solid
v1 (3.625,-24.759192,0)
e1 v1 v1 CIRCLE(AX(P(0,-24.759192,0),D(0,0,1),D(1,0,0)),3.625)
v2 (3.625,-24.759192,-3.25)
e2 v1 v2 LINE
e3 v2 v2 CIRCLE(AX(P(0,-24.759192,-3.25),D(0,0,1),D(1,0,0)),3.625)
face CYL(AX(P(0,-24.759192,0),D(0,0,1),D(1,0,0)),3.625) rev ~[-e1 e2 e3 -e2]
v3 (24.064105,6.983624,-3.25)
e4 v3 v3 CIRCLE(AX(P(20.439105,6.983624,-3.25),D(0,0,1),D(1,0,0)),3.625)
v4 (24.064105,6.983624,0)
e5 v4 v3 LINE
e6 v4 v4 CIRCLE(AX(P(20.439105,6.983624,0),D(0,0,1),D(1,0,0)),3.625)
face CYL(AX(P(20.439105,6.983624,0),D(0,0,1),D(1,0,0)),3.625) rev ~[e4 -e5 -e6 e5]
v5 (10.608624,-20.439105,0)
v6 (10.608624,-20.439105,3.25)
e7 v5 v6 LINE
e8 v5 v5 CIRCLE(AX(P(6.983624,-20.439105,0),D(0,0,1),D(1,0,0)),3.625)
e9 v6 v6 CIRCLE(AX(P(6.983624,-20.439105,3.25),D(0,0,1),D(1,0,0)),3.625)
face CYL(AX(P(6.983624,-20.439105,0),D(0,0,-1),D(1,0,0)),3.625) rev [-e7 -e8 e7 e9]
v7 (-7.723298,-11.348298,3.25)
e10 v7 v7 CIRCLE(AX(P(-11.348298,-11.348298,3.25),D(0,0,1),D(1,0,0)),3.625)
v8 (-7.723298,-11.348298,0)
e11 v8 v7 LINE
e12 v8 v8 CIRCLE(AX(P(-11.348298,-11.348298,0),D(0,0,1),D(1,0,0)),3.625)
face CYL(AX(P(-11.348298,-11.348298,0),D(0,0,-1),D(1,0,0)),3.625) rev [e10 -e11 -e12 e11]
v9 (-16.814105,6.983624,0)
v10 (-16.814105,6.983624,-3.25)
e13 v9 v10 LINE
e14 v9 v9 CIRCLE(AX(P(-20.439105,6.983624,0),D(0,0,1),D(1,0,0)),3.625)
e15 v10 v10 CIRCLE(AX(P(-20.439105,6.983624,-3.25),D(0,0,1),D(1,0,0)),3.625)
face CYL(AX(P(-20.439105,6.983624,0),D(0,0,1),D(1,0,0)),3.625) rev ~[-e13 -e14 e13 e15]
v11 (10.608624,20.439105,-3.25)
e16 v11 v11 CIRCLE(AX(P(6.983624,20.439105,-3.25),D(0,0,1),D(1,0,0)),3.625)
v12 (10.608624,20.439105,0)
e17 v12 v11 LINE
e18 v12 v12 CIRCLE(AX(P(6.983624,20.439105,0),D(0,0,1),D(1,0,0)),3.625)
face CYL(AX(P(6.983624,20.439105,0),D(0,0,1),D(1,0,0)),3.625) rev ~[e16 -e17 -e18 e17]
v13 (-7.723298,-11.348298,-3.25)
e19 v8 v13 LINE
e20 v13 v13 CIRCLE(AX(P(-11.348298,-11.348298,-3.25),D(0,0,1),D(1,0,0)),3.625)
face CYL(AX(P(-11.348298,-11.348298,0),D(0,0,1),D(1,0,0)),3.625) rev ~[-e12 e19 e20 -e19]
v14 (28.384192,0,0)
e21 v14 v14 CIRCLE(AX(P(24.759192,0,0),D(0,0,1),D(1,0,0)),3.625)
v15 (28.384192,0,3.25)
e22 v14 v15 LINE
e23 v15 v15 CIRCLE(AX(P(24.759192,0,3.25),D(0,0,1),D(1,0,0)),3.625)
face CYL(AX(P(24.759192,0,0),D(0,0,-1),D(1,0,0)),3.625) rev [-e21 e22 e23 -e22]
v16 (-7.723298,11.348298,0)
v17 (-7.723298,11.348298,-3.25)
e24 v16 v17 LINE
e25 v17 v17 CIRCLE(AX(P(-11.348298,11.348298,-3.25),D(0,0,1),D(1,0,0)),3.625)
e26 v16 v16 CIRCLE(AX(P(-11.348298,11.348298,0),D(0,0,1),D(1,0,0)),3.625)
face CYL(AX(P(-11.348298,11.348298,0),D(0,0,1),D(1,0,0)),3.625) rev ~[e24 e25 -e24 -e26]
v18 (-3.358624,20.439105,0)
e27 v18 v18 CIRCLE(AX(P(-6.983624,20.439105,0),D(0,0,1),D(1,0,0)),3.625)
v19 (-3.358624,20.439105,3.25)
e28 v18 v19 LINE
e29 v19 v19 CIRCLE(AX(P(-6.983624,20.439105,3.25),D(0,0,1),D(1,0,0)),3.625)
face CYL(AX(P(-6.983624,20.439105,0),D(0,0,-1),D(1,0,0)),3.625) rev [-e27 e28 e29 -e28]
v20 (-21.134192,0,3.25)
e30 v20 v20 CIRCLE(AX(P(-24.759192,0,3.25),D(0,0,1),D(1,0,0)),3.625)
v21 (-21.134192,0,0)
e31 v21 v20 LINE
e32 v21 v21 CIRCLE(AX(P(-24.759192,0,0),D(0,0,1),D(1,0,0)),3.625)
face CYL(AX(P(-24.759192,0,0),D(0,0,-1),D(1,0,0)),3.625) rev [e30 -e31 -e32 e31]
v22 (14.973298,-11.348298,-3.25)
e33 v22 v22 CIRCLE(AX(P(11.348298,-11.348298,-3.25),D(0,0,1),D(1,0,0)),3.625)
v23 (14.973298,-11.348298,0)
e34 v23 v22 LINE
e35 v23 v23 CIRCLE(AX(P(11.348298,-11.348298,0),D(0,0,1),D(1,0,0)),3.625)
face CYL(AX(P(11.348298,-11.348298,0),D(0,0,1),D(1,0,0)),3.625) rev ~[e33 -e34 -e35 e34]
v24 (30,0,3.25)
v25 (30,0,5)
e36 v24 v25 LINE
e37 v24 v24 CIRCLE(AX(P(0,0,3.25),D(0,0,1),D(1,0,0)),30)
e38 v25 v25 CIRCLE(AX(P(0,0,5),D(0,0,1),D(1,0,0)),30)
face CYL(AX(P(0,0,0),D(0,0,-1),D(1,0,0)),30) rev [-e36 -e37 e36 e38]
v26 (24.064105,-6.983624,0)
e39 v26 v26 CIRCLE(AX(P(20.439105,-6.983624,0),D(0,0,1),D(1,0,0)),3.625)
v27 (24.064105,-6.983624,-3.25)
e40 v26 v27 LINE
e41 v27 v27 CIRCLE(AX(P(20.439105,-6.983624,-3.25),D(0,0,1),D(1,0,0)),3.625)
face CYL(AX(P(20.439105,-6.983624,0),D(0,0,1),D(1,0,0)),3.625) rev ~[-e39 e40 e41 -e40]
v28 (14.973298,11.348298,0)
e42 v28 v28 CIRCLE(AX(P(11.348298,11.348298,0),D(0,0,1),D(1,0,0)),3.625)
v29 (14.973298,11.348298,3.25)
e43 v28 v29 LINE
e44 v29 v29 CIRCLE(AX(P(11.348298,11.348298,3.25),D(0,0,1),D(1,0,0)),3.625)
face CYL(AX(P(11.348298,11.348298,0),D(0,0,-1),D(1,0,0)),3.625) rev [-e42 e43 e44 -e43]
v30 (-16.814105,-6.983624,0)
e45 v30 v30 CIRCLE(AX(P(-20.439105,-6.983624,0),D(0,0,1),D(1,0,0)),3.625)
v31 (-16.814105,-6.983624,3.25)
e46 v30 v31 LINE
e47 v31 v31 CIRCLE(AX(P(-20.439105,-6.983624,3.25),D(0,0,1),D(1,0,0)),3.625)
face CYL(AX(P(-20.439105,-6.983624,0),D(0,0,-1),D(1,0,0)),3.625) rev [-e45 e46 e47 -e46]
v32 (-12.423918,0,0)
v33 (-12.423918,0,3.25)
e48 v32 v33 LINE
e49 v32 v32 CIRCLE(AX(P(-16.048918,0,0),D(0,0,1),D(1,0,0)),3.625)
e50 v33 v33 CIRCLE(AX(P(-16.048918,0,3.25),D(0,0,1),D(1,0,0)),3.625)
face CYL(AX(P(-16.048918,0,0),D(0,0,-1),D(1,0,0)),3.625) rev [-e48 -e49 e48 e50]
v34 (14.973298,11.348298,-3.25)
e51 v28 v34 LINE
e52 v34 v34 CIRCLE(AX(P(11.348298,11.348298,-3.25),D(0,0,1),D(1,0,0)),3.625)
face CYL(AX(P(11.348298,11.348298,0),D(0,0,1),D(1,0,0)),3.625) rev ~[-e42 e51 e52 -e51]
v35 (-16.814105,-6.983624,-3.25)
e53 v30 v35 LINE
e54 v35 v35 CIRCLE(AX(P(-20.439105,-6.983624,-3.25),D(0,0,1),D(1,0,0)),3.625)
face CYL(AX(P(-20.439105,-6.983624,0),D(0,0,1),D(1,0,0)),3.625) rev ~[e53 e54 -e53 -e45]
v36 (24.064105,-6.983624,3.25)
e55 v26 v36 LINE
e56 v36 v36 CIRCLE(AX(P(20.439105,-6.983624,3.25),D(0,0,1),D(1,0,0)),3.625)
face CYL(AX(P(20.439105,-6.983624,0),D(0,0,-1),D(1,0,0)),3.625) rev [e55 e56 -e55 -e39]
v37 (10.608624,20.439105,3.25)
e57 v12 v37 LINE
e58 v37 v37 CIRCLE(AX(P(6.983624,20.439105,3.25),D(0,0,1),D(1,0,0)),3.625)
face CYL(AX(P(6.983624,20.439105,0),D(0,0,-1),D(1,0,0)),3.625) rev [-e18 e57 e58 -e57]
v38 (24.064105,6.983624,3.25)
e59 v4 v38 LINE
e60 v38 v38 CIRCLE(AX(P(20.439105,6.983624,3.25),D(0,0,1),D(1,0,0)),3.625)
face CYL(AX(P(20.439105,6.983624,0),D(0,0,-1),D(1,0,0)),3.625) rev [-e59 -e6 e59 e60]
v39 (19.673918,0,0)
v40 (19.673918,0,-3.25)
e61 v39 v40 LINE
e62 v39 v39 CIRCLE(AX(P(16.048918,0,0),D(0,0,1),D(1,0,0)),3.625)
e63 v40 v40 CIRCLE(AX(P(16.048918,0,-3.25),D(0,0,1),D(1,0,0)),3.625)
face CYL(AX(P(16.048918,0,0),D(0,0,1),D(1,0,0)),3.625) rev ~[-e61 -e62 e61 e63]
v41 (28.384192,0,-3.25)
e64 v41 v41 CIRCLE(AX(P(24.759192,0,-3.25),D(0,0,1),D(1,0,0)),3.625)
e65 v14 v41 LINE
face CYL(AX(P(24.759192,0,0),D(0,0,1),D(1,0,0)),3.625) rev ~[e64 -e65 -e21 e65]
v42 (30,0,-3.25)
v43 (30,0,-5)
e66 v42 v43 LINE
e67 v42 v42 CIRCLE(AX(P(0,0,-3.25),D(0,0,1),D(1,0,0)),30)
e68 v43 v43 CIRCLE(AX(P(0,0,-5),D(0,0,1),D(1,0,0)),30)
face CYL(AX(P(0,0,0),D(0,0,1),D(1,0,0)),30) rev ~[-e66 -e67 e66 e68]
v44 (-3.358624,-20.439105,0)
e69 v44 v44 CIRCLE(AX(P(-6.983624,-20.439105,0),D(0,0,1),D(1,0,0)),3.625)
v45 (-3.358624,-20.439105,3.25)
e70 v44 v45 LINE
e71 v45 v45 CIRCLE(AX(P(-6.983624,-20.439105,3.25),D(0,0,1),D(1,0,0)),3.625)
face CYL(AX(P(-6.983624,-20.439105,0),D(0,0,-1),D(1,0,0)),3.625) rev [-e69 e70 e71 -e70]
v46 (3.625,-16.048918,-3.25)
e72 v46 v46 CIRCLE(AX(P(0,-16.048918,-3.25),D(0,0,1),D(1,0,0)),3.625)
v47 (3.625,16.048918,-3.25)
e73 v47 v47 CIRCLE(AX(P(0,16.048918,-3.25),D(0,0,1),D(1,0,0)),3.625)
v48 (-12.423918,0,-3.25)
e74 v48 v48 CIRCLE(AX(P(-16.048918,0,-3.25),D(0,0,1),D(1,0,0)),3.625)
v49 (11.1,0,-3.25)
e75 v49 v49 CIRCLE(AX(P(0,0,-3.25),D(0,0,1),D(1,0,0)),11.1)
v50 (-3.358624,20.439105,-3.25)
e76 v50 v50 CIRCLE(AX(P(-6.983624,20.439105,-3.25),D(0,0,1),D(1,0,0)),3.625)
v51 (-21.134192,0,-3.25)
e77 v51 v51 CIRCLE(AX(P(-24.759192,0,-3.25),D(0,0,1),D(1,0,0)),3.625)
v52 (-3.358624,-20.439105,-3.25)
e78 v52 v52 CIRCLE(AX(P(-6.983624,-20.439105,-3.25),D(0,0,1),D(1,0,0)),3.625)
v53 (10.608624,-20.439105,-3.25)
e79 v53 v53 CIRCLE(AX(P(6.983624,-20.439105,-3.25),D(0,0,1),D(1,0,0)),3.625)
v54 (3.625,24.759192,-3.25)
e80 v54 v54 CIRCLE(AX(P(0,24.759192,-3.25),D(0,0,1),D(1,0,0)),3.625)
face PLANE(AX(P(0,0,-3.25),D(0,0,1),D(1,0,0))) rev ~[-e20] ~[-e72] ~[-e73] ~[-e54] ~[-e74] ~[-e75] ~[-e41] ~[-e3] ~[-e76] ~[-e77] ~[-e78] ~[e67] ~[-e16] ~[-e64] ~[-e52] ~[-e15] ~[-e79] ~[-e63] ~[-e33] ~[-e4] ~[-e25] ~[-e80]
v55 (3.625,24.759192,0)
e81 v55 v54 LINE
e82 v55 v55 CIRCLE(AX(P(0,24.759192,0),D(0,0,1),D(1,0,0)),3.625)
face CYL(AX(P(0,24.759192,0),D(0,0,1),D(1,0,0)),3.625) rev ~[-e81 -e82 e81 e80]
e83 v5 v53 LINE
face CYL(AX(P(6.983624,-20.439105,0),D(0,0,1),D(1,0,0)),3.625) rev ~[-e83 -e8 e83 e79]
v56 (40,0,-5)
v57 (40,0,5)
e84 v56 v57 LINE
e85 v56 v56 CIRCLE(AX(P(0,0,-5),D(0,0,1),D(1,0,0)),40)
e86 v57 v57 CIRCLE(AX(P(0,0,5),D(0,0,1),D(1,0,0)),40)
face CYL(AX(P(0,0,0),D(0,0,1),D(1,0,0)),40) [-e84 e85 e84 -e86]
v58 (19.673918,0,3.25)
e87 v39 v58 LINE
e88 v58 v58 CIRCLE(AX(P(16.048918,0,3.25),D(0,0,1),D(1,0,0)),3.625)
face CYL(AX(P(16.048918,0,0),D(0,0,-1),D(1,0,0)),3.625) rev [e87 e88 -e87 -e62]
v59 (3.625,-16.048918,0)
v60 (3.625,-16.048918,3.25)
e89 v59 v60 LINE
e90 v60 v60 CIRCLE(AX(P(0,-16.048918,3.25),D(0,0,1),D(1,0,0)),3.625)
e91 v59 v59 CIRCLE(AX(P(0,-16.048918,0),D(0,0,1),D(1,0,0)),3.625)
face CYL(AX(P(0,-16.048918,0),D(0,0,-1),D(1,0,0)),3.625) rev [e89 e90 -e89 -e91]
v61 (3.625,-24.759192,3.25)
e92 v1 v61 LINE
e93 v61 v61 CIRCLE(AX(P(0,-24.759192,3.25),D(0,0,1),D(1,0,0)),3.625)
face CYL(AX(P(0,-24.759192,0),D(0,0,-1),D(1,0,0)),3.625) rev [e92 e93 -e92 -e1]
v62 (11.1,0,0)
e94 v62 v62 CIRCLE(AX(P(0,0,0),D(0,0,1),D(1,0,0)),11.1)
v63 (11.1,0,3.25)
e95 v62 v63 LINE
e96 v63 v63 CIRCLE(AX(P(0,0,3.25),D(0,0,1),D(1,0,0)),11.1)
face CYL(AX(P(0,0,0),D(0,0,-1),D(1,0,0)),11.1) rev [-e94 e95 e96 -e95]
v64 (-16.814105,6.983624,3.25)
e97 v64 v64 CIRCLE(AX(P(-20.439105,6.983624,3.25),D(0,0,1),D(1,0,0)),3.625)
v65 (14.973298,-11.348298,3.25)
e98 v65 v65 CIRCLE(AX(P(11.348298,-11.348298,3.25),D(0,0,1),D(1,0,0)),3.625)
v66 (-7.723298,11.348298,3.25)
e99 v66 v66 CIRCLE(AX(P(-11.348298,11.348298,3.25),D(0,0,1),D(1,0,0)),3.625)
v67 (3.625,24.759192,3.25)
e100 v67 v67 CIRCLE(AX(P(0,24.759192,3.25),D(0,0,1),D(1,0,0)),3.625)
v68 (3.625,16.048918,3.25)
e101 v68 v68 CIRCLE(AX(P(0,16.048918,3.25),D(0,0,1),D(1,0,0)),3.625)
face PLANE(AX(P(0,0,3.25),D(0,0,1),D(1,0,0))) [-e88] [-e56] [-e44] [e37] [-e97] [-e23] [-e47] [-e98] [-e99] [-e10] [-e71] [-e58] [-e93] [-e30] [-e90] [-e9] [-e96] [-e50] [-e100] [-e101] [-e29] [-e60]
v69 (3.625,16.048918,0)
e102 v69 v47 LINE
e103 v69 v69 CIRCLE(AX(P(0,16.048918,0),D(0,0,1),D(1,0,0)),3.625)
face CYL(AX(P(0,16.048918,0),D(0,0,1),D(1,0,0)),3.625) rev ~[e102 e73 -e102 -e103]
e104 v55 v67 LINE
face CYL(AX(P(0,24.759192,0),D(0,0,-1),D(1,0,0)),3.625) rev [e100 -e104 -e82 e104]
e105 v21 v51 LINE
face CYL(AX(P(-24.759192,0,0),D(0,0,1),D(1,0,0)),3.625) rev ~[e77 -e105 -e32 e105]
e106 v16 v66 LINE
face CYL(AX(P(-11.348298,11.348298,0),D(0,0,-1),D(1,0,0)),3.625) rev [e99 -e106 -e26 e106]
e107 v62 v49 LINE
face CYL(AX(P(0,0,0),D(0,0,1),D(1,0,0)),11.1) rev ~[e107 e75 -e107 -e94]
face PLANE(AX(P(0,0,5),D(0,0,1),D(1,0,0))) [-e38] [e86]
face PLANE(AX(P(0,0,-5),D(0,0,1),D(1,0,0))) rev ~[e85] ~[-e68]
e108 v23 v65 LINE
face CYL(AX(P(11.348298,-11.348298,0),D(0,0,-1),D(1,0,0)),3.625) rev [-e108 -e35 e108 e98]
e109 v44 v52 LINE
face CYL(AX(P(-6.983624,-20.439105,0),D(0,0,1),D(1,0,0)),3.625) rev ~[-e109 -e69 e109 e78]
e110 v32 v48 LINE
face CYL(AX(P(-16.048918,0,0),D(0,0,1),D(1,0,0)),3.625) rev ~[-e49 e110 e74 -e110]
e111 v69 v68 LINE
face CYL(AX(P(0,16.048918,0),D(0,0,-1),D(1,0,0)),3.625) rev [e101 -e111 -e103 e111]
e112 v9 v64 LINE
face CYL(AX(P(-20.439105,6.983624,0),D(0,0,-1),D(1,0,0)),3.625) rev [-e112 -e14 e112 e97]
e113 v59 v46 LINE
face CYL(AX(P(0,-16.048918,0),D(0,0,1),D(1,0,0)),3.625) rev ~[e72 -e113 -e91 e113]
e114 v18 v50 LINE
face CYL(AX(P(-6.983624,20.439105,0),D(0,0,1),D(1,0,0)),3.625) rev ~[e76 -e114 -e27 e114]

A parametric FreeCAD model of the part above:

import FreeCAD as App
import Part
import Sketcher
Q = App.Units.Quantity

doc = App.newDocument("Part")
params = doc.addObject("Spreadsheet::Sheet", "Params")
for row, (alias, value) in enumerate([
    ("sketch1_diameter", "60 mm"),
    ("sketch1_diameter2", "22.2 mm"),
    ("sketch1_diameter3", "7.25 mm"),
    ("pad1_length", "3.25 mm"),
    ("pad1_length2", "3.25 mm"),
    ("sketch2_diameter", "80 mm"),
    ("sketch2_diameter2", "60 mm"),
    ("pad2_length", "5 mm"),
    ("pad2_length2", "5 mm"),
], start=1):
    params.set(f"A{row}", alias)
    params.set(f"B{row}", "=" + value)
    params.setAlias(f"B{row}", alias)

body = doc.addObject("PartDesign::Body", "Body")

# Sketch on XY plane
sketch1 = doc.addObject("Sketcher::SketchObject", "Sketch")
body.addObject(sketch1)
sketch1.AttachmentSupport = (doc.XY_Plane, [""])
sketch1.MapMode = "FlatFace"
sketch1.addGeometry(Part.Circle(App.Vector(0, 0, 0), App.Vector(0, 0, 1), 30), False)
sketch1.addGeometry(Part.Circle(App.Vector(-7, -20.4, 0), App.Vector(0, 0, 1), 3.6), False)
sketch1.addGeometry(Part.Circle(App.Vector(-20.4, -7, 0), App.Vector(0, 0, 1), 3.6), False)
sketch1.addGeometry(Part.Circle(App.Vector(-11.3, -11.3, 0), App.Vector(0, 0, 1), 3.6), False)
sketch1.addGeometry(Part.Circle(App.Vector(0, -24.8, 0), App.Vector(0, 0, 1), 3.6), False)
sketch1.addGeometry(Part.Circle(App.Vector(7, -20.4, 0), App.Vector(0, 0, 1), 3.6), False)
sketch1.addGeometry(Part.Circle(App.Vector(0, -16, 0), App.Vector(0, 0, 1), 3.6), False)
sketch1.addGeometry(Part.Circle(App.Vector(11.3, -11.3, 0), App.Vector(0, 0, 1), 3.6), False)
sketch1.addGeometry(Part.Circle(App.Vector(20.4, -7, 0), App.Vector(0, 0, 1), 3.6), False)
sketch1.addGeometry(Part.Circle(App.Vector(-24.8, 0, 0), App.Vector(0, 0, 1), 3.6), False)
sketch1.addGeometry(Part.Circle(App.Vector(-16, 0, 0), App.Vector(0, 0, 1), 3.6), False)
sketch1.addGeometry(Part.Circle(App.Vector(-20.4, 7, 0), App.Vector(0, 0, 1), 3.6), False)
sketch1.addGeometry(Part.Circle(App.Vector(-11.3, 11.3, 0), App.Vector(0, 0, 1), 3.6), False)
sketch1.addGeometry(Part.Circle(App.Vector(-7, 20.4, 0), App.Vector(0, 0, 1), 3.6), False)
sketch1.addGeometry(Part.Circle(App.Vector(0, 0, 0), App.Vector(0, 0, 1), 11.1), False)
sketch1.addGeometry(Part.Circle(App.Vector(11.3, 11.3, 0), App.Vector(0, 0, 1), 3.6), False)
sketch1.addGeometry(Part.Circle(App.Vector(16, 0, 0), App.Vector(0, 0, 1), 3.6), False)
sketch1.addGeometry(Part.Circle(App.Vector(20.4, 7, 0), App.Vector(0, 0, 1), 3.6), False)
sketch1.addGeometry(Part.Circle(App.Vector(24.8, 0, 0), App.Vector(0, 0, 1), 3.6), False)
sketch1.addGeometry(Part.Circle(App.Vector(0, 16, 0), App.Vector(0, 0, 1), 3.6), False)
sketch1.addGeometry(Part.Circle(App.Vector(7, 20.4, 0), App.Vector(0, 0, 1), 3.6), False)
sketch1.addGeometry(Part.Circle(App.Vector(0, 24.8, 0), App.Vector(0, 0, 1), 3.6), False)
sketch1.addConstraint(Sketcher.Constraint("Coincident", 0, 3, -1, 1))
sketch1.addConstraint(Sketcher.Constraint("Coincident", 14, 3, -1, 1))
sketch1.addConstraint(Sketcher.Constraint("Equal", 1, 2))
sketch1.addConstraint(Sketcher.Constraint("Equal", 2, 3))
sketch1.addConstraint(Sketcher.Constraint("Equal", 3, 4))
sketch1.addConstraint(Sketcher.Constraint("Equal", 4, 5))
sketch1.addConstraint(Sketcher.Constraint("Equal", 5, 6))
sketch1.addConstraint(Sketcher.Constraint("Equal", 6, 7))
sketch1.addConstraint(Sketcher.Constraint("Equal", 7, 8))
sketch1.addConstraint(Sketcher.Constraint("Equal", 8, 9))
sketch1.addConstraint(Sketcher.Constraint("Equal", 9, 10))
sketch1.addConstraint(Sketcher.Constraint("Equal", 10, 11))
sketch1.addConstraint(Sketcher.Constraint("Equal", 11, 12))
sketch1.addConstraint(Sketcher.Constraint("Equal", 12, 13))
sketch1.addConstraint(Sketcher.Constraint("Equal", 13, 15))
sketch1.addConstraint(Sketcher.Constraint("Equal", 15, 16))
sketch1.addConstraint(Sketcher.Constraint("Equal", 16, 17))
sketch1.addConstraint(Sketcher.Constraint("Equal", 17, 18))
sketch1.addConstraint(Sketcher.Constraint("Equal", 18, 19))
sketch1.addConstraint(Sketcher.Constraint("Equal", 19, 20))
sketch1.addConstraint(Sketcher.Constraint("Equal", 20, 21))
sketch1.addConstraint(Sketcher.Constraint("Symmetric", 8, 3, 11, 3, -1, 1))
sketch1.addConstraint(Sketcher.Constraint("Symmetric", 7, 3, 12, 3, -1, 1))
sketch1.addConstraint(Sketcher.Constraint("Symmetric", 5, 3, 13, 3, -1, 1))
sketch1.addConstraint(Sketcher.Constraint("Symmetric", 3, 3, 15, 3, -1, 1))
sketch1.addConstraint(Sketcher.Constraint("Symmetric", 10, 3, 16, 3, -1, 1))
sketch1.addConstraint(Sketcher.Constraint("Symmetric", 2, 3, 17, 3, -1, 1))
sketch1.addConstraint(Sketcher.Constraint("Symmetric", 9, 3, 18, 3, -1, 1))
sketch1.addConstraint(Sketcher.Constraint("Symmetric", 6, 3, 19, 3, -1, 1))
sketch1.addConstraint(Sketcher.Constraint("Symmetric", 1, 3, 20, 3, -1, 1))
sketch1.addConstraint(Sketcher.Constraint("Symmetric", 4, 3, 21, 3, -1, 1))
sketch1.addConstraint(Sketcher.Constraint("Symmetric", 1, 3, 5, 3, -2))
sketch1.addConstraint(Sketcher.Constraint("Symmetric", 3, 3, 7, 3, -2))
sketch1.addConstraint(Sketcher.Constraint("Symmetric", 2, 3, 8, 3, -2))
sketch1.addConstraint(Sketcher.Constraint("PointOnObject", 4, 3, -2))
sketch1.addConstraint(Sketcher.Constraint("PointOnObject", 6, 3, -2))
sketch1.addConstraint(Sketcher.Constraint("PointOnObject", 9, 3, -1))
sketch1.addConstraint(Sketcher.Constraint("PointOnObject", 10, 3, -1))
sketch1.addConstraint(Sketcher.Constraint("Diameter", 0, Q("60 mm")))
sketch1.addConstraint(Sketcher.Constraint("Diameter", 14, Q("22.2 mm")))
sketch1.addConstraint(Sketcher.Constraint("Diameter", 1, Q("7.25 mm")))
sketch1.addConstraint(Sketcher.Constraint("DistanceY", 4, 3, -1, 1, Q("24.759192 mm")))
sketch1.addConstraint(Sketcher.Constraint("DistanceY", 6, 3, -1, 1, Q("16.048918 mm")))
sketch1.addConstraint(Sketcher.Constraint("DistanceX", 9, 3, -1, 1, Q("24.759192 mm")))
sketch1.addConstraint(Sketcher.Constraint("DistanceX", 10, 3, -1, 1, Q("16.048918 mm")))
sketch1.addConstraint(Sketcher.Constraint("DistanceX", 2, 3, 1, 3, Q("13.455481 mm")))
sketch1.addConstraint(Sketcher.Constraint("DistanceY", 1, 3, 2, 3, Q("13.455481 mm")))
sketch1.addConstraint(Sketcher.Constraint("DistanceY", 4, 3, 2, 3, Q("17.775568 mm")))
sketch1.addConstraint(Sketcher.Constraint("DistanceX", 3, 3, 5, 3, Q("18.331922 mm")))
sketch1.addConstraint(Sketcher.Constraint("DistanceX", 2, 3, 5, 3, Q("27.422729 mm")))
sketch1.addConstraint(Sketcher.Constraint("DistanceY", 6, 3, 3, 3, Q("4.70062 mm")))
sketch1.setExpression("Constraints[38]", "Params.sketch1_diameter")
sketch1.setExpression("Constraints[39]", "Params.sketch1_diameter2")
sketch1.setExpression("Constraints[40]", "Params.sketch1_diameter3")
pad1 = doc.addObject("PartDesign::Pad", "Pad")
body.addObject(pad1)
pad1.Profile = sketch1
pad1.Type = "TwoLengths"
pad1.setExpression("Length", "Params.pad1_length")
pad1.setExpression("Length2", "Params.pad1_length2")

# Sketch on XY plane
sketch2 = doc.addObject("Sketcher::SketchObject", "Sketch001")
body.addObject(sketch2)
sketch2.AttachmentSupport = (doc.XY_Plane, [""])
sketch2.MapMode = "FlatFace"
sketch2.addGeometry(Part.Circle(App.Vector(0, 0, 0), App.Vector(0, 0, 1), 40), False)
sketch2.addGeometry(Part.Circle(App.Vector(0, 0, 0), App.Vector(0, 0, 1), 30), False)
sketch2.addConstraint(Sketcher.Constraint("Coincident", 0, 3, -1, 1))
sketch2.addConstraint(Sketcher.Constraint("Coincident", 1, 3, -1, 1))
sketch2.addConstraint(Sketcher.Constraint("Diameter", 0, Q("80 mm")))
sketch2.addConstraint(Sketcher.Constraint("Diameter", 1, Q("60 mm")))
sketch2.setExpression("Constraints[2]", "Params.sketch2_diameter")
sketch2.setExpression("Constraints[3]", "Params.sketch2_diameter2")
pad2 = doc.addObject("PartDesign::Pad", "Pad001")
body.addObject(pad2)
pad2.Profile = sketch2
pad2.Type = "TwoLengths"
pad2.setExpression("Length", "Params.pad2_length")
pad2.setExpression("Length2", "Params.pad2_length2")

doc.recompute()
